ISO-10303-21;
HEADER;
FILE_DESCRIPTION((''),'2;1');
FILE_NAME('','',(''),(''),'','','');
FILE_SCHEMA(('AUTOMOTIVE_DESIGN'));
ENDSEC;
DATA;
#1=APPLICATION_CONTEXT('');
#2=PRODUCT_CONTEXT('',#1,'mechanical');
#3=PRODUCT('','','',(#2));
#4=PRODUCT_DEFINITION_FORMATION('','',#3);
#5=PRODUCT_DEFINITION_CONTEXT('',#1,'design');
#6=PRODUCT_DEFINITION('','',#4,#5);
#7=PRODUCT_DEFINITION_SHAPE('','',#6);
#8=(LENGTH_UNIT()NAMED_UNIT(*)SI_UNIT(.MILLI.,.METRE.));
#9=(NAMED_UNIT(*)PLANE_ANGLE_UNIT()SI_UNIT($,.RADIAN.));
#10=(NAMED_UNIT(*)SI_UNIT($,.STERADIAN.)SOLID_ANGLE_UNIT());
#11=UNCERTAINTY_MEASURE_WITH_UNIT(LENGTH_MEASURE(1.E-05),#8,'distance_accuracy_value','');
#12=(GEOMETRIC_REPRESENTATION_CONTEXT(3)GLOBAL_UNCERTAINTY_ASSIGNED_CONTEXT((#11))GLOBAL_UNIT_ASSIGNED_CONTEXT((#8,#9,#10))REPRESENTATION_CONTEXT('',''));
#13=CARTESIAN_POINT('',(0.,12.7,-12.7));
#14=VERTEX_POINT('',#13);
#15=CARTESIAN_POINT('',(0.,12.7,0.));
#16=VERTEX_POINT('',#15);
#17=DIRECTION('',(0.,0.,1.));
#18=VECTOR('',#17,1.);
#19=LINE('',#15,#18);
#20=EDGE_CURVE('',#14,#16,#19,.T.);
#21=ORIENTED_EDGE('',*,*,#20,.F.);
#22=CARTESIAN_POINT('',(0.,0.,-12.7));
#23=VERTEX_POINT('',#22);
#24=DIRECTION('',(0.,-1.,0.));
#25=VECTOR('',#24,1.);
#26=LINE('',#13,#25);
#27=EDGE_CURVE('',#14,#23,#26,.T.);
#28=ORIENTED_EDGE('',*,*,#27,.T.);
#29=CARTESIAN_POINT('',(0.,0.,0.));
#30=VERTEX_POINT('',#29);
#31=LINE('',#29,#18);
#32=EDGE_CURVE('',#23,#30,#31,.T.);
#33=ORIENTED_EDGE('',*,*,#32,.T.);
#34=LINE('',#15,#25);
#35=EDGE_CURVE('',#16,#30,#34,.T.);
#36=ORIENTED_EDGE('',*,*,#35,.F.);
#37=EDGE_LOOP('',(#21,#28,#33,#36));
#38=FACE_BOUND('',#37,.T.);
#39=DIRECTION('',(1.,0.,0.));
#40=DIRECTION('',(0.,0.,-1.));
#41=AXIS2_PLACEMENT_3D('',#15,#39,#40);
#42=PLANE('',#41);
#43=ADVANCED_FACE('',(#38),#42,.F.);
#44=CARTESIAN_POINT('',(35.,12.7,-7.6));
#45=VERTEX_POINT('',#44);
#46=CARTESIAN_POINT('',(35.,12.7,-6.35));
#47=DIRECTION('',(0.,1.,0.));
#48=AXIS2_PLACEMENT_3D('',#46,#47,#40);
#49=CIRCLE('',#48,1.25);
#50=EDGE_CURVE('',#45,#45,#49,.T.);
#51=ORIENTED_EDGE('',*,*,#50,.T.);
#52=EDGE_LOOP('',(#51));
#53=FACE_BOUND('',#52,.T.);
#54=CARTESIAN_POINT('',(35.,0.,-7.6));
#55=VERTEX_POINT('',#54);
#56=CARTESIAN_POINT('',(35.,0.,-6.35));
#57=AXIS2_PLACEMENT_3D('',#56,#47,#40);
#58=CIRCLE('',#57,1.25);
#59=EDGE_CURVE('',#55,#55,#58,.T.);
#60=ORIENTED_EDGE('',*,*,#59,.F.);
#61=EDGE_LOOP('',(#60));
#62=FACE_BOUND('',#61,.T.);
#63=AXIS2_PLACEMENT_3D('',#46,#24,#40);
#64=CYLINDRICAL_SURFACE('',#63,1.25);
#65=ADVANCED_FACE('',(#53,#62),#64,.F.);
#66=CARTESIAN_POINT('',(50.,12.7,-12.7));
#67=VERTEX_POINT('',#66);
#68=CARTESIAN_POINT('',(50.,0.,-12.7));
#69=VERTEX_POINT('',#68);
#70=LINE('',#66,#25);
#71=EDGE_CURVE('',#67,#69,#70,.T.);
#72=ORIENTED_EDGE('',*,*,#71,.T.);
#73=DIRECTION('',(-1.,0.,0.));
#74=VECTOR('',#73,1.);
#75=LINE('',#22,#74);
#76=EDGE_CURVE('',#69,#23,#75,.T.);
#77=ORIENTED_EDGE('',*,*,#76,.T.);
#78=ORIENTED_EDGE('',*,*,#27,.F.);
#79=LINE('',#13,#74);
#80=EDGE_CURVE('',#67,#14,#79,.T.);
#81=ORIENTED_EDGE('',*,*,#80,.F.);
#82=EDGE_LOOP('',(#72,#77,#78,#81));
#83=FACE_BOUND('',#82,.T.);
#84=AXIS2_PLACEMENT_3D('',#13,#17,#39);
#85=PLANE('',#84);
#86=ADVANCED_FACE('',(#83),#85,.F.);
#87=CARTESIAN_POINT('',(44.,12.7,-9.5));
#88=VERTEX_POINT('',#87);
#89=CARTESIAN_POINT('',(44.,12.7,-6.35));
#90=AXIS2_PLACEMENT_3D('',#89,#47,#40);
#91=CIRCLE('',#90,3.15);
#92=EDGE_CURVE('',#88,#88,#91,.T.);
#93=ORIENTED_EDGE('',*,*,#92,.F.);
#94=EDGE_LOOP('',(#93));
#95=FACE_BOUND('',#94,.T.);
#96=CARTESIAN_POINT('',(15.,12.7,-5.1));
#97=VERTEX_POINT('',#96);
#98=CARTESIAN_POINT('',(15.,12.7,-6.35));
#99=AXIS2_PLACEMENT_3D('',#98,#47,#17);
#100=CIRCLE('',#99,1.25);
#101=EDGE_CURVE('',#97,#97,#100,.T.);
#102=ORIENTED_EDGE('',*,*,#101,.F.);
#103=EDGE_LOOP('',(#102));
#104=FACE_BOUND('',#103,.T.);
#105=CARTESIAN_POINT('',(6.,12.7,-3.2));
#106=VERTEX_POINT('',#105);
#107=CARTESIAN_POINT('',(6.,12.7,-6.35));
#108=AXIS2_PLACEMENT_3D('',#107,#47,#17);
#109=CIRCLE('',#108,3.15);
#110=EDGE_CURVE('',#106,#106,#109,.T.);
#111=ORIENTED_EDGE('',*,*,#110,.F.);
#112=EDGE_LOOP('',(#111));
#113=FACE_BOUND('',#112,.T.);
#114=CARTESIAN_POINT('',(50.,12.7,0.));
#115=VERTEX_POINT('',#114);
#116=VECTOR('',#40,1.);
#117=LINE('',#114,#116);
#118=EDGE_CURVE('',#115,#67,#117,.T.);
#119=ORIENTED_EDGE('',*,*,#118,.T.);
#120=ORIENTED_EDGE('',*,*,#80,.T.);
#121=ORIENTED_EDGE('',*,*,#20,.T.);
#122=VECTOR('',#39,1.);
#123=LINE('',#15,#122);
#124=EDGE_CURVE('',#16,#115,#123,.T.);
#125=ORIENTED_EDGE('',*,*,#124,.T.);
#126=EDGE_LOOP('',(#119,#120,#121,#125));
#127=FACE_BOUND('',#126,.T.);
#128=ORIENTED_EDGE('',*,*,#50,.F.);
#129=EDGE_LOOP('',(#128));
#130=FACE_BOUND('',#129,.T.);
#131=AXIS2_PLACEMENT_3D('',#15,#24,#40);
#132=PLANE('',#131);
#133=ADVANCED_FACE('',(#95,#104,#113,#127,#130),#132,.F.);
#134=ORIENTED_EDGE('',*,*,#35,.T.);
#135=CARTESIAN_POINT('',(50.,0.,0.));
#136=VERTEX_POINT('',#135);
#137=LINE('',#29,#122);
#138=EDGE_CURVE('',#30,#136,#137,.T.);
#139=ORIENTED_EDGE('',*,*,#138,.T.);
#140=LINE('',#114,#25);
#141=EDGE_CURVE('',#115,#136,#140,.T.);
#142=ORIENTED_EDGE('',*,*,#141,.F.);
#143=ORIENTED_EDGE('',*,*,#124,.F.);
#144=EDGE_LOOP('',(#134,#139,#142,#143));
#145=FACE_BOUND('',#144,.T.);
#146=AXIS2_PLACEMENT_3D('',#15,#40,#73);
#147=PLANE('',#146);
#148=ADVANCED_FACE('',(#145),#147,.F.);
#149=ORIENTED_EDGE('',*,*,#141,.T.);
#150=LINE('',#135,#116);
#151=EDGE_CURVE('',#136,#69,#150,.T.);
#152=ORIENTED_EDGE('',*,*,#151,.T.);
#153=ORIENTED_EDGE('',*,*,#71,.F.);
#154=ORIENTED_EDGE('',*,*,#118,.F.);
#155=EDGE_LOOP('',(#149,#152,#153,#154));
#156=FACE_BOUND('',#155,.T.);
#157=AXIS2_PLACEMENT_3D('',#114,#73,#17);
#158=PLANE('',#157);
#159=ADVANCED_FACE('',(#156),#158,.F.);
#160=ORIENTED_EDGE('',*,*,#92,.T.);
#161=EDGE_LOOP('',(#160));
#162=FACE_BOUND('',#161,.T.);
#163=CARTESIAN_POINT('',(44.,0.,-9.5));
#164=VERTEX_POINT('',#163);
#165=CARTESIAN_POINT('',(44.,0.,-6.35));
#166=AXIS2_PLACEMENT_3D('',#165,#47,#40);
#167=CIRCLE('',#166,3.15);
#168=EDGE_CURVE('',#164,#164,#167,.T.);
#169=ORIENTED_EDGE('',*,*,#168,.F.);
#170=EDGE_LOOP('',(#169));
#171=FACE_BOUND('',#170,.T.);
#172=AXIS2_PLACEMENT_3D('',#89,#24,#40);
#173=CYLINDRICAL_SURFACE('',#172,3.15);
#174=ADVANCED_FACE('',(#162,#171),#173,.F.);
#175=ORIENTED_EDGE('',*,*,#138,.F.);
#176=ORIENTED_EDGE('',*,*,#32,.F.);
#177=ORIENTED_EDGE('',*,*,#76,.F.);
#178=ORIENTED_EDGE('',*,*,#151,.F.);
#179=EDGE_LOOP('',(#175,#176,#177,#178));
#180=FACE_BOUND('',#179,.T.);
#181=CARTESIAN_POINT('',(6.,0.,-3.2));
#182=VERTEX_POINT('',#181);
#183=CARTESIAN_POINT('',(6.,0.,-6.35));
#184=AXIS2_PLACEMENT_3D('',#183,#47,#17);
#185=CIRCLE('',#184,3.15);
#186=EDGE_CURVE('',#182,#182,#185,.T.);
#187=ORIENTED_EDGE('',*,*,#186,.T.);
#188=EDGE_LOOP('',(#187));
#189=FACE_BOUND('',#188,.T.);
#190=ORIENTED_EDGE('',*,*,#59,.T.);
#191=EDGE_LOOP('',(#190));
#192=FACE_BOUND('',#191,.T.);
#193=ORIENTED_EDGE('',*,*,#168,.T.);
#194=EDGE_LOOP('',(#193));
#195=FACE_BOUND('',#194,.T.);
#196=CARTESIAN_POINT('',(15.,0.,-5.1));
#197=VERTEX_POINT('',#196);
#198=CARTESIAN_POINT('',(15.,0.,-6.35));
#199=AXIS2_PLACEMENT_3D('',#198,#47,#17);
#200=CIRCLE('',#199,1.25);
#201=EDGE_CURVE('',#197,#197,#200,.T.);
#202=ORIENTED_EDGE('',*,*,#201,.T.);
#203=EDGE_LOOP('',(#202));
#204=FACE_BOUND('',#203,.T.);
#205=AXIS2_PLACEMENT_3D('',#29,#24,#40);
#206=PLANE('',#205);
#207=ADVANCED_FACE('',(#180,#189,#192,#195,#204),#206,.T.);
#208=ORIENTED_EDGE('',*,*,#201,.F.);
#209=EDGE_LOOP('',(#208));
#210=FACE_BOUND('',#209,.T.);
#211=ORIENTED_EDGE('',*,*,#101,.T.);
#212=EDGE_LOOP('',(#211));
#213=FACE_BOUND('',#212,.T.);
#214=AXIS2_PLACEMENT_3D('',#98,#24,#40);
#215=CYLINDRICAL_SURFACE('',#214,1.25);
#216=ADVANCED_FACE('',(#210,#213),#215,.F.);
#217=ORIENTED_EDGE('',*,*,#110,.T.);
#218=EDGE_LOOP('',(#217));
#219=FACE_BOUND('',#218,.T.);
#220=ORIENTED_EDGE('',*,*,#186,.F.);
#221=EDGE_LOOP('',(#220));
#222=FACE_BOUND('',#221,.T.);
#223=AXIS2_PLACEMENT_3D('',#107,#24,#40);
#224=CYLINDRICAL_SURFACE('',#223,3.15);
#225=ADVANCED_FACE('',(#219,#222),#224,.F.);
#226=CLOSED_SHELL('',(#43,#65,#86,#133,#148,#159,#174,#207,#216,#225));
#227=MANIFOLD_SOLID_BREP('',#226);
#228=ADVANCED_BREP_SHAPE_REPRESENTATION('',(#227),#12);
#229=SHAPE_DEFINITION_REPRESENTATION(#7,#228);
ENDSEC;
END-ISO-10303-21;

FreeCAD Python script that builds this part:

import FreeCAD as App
import Part
import Sketcher

V = App.Vector
Q = App.Units.Quantity

doc = App.newDocument("Part")
body = doc.addObject("PartDesign::Body", "Body")

# Sketch on XZ plane
sketch1 = body.newObject("Sketcher::SketchObject", "Sketch")
sketch1.AttachmentSupport = (doc.getObject("XZ_Plane"), [""])
sketch1.MapMode = "FlatFace"
sketch1.addGeometry([
    Part.LineSegment(V(0, -12.7, 0), V(0, 0, 0)),  # 0
    Part.LineSegment(V(0, 0, 0), V(50, 0, 0)),  # 1
    Part.LineSegment(V(50, 0, 0), V(50, -12.7, 0)),  # 2
    Part.LineSegment(V(50, -12.7, 0), V(0, -12.7, 0)),  # 3
    Part.Circle(V(6, -6.3, 0), V(0, 0, 1), 3.1),  # 4
    Part.Circle(V(15, -6.3, 0), V(0, 0, 1), 1.2),  # 5
    Part.Circle(V(35, -6.3, 0), V(0, 0, 1), 1.2),  # 6
    Part.Circle(V(44, -6.3, 0), V(0, 0, 1), 3.1),  # 7
], False)
sketch1.addConstraint([
    Sketcher.Constraint("Coincident", 0, 2, 1, 1),
    Sketcher.Constraint("Coincident", 1, 2, 2, 1),
    Sketcher.Constraint("Coincident", 2, 2, 3, 1),
    Sketcher.Constraint("Coincident", 3, 2, 0, 1),
    Sketcher.Constraint("Vertical", 0),
    Sketcher.Constraint("Horizontal", 1),
    Sketcher.Constraint("Vertical", 2),
    Sketcher.Constraint("Horizontal", 3),
    Sketcher.Constraint("Coincident", 0, 2, -1, 1),
    Sketcher.Constraint("Equal", 5, 6),
    Sketcher.Constraint("Equal", 4, 7),
    Sketcher.Constraint("Horizontal", 4, 3, 5, 3),
    Sketcher.Constraint("Horizontal", 5, 3, 6, 3),
    Sketcher.Constraint("Horizontal", 6, 3, 7, 3),
    Sketcher.Constraint("Diameter", 4, Q("6.3 mm")),
    Sketcher.Constraint("Diameter", 5, Q("2.5 mm")),
    Sketcher.Constraint("DistanceX", 1, 1, 1, 2, Q("50 mm")),
    Sketcher.Constraint("DistanceY", 0, 1, 0, 2, Q("12.7 mm")),
    Sketcher.Constraint("DistanceX", -1, 1, 4, 3, Q("6 mm")),
    Sketcher.Constraint("DistanceX", -1, 1, 5, 3, Q("15 mm")),
    Sketcher.Constraint("DistanceX", -1, 1, 6, 3, Q("35 mm")),
    Sketcher.Constraint("DistanceX", -1, 1, 7, 3, Q("44 mm")),
    Sketcher.Constraint("DistanceY", 4, 3, -1, 1, Q("6.35 mm")),
])
pad1 = body.newObject("PartDesign::Pad", "Pad")
pad1.Profile = sketch1
pad1.Length = 12.7
pad1.Reversed = True

doc.recompute()
